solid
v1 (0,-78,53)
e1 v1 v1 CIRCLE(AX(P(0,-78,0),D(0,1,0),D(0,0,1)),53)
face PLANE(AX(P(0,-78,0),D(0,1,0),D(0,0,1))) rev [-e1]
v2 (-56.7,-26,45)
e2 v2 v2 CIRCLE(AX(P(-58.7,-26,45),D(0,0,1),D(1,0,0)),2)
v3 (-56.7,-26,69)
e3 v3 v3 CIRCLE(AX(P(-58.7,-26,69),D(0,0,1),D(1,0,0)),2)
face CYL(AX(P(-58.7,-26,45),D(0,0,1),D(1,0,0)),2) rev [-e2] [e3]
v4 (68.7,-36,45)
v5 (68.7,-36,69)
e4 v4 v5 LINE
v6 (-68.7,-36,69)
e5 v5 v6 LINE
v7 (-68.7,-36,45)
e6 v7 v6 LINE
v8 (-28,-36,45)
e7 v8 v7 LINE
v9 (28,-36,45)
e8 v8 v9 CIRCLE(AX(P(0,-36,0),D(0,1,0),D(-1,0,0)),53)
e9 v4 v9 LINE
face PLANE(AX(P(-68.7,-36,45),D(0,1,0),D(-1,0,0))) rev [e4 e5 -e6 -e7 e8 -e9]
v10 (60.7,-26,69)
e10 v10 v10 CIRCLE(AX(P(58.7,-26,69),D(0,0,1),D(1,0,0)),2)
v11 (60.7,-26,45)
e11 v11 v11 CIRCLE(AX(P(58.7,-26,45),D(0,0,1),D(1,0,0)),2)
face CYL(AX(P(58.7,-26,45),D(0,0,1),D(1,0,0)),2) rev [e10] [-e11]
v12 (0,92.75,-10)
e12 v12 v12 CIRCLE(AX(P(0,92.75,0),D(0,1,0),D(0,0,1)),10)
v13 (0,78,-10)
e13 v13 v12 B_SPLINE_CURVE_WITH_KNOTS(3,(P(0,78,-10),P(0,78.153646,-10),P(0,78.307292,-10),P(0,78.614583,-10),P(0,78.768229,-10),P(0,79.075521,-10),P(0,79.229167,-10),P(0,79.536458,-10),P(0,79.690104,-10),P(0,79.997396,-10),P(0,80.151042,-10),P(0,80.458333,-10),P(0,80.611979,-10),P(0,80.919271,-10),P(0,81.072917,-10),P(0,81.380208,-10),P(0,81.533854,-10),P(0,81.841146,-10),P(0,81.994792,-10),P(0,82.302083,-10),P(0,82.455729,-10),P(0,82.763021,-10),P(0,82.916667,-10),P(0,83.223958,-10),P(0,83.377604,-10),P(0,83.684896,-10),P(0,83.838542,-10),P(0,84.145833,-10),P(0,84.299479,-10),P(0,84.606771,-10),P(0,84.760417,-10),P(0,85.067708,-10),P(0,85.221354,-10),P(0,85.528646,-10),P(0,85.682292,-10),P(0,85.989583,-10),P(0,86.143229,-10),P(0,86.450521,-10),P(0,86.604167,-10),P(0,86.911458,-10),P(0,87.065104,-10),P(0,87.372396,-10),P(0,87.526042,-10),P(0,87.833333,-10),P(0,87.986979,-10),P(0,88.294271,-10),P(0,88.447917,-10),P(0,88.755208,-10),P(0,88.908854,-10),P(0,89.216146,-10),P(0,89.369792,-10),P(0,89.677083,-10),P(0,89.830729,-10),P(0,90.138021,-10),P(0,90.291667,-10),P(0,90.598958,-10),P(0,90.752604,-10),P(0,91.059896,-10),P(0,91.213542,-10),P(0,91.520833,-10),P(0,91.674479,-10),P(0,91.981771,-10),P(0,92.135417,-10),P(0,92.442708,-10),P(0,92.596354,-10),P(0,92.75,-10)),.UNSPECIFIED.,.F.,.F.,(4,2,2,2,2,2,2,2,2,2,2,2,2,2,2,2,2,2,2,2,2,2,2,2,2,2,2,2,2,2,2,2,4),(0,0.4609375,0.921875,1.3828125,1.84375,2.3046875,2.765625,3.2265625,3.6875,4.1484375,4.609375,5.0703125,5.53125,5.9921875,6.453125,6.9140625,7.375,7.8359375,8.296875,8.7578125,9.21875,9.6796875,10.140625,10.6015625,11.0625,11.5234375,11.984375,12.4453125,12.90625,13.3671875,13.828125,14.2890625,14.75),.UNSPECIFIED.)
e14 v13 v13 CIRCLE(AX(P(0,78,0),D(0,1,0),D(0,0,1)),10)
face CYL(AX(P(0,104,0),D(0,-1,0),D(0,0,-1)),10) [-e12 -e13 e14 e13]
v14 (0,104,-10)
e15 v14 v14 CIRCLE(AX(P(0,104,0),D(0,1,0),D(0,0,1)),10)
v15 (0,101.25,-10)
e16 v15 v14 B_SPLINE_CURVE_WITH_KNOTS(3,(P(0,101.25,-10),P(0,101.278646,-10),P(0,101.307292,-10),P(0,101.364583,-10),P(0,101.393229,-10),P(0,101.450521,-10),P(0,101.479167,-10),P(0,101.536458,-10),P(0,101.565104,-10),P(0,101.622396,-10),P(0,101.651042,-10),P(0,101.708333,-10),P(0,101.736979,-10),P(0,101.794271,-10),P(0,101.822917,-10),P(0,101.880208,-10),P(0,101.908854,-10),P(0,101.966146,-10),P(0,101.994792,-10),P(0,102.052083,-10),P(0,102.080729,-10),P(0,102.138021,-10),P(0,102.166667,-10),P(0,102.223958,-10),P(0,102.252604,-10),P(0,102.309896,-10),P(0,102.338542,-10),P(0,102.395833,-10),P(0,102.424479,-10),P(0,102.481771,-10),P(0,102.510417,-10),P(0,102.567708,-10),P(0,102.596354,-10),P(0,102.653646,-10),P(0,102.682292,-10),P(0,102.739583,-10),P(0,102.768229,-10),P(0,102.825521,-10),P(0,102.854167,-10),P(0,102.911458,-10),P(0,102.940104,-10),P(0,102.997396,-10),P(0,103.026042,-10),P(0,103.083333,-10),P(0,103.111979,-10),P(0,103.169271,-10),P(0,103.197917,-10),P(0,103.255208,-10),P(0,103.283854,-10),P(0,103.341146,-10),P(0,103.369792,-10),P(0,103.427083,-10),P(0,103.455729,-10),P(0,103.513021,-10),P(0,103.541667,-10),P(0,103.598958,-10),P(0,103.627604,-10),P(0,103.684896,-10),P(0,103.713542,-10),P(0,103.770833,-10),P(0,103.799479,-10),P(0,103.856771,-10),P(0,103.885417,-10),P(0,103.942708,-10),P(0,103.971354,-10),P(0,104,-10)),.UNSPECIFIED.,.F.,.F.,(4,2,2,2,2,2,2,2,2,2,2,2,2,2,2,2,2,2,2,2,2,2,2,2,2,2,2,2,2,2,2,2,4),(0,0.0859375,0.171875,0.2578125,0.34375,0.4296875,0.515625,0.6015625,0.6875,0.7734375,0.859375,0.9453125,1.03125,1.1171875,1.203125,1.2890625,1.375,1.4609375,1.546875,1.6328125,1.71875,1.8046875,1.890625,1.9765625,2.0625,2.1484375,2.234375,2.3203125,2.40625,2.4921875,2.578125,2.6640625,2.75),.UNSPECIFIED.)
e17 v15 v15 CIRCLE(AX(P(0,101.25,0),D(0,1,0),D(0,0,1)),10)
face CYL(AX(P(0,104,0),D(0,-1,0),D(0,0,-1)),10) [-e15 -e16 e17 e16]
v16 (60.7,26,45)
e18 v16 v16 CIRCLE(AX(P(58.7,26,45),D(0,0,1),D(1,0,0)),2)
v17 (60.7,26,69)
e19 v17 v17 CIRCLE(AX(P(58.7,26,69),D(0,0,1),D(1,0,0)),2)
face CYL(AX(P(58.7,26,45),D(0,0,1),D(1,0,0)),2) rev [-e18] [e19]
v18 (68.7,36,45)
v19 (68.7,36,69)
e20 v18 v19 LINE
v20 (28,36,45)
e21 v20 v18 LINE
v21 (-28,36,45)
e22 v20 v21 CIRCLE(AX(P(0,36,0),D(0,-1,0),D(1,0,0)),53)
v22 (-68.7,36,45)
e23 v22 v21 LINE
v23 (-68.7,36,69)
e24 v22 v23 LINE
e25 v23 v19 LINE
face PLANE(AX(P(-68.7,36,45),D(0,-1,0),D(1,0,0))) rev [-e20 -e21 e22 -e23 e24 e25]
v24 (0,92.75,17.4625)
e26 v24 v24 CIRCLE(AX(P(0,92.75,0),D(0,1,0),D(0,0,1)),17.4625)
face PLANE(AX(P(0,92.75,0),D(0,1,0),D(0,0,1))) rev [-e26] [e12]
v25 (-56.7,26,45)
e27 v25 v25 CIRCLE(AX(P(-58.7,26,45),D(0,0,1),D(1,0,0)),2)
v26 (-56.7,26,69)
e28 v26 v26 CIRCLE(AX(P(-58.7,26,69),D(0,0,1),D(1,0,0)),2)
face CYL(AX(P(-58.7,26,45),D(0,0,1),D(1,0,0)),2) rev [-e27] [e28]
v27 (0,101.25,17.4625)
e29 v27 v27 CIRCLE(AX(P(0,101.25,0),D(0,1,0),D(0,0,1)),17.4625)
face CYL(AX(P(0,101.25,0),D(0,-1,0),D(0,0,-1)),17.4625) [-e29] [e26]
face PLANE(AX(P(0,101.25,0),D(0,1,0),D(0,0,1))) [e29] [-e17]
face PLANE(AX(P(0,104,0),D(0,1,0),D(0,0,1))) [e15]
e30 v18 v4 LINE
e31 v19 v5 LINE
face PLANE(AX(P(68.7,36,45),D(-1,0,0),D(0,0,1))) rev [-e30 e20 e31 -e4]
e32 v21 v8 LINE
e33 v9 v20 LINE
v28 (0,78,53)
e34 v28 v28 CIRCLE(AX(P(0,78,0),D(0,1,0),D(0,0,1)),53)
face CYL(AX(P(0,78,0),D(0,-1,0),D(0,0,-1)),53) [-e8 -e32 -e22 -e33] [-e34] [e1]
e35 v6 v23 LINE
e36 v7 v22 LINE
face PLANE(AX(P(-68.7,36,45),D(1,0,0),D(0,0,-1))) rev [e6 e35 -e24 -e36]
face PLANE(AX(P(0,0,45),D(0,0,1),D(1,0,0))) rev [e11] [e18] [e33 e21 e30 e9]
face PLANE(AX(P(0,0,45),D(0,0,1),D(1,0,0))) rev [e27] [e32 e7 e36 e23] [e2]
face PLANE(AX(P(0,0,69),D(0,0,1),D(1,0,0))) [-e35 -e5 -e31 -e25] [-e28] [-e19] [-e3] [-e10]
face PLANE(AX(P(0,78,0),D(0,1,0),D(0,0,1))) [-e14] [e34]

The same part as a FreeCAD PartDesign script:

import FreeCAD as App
import Part
import Sketcher
from FreeCAD import Vector
Q = App.Units.Quantity


def add_polygon(sketch, points):
    """Adds a closed chain of lines whose ends are joined by coincident constraints."""
    first, n = sketch.GeometryCount, len(points)
    for a, b in zip(points, points[1:] + points[:1]):
        sketch.addGeometry(Part.LineSegment(App.Vector(*a, 0), App.Vector(*b, 0)), False)
    for i in range(n):
        sketch.addConstraint(Sketcher.Constraint("Coincident", first + i, 2, first + (i + 1) % n, 1))

doc = App.newDocument("Part")
body = doc.addObject("PartDesign::Body", "Body")

sketch1 = body.newObject("Sketcher::SketchObject", "Sketch")
sketch1.AttachmentSupport = (doc.getObject("XZ_Plane"), [""])
sketch1.MapMode = "FlatFace"
sketch1.addGeometry(Part.Circle(Vector(0, 0, 0), Vector(0, 0, 1), 53), False)
sketch1.addConstraint(Sketcher.Constraint("Coincident", 0, 3, -1, 1))
sketch1.addConstraint(Sketcher.Constraint("Diameter", 0, Q("106 mm")))
pad1 = body.newObject("PartDesign::Pad", "Pad")
pad1.Profile = sketch1
pad1.Length = 156
pad1.Midplane = True

sketch2 = body.newObject("Sketcher::SketchObject", "Sketch001")
sketch2.AttachmentSupport = (doc.getObject("XZ_Plane"), [""])
sketch2.MapMode = "FlatFace"
sketch2.AttachmentOffset = App.Placement(Vector(0, 0, -78), App.Rotation())
sketch2.addGeometry(Part.Circle(Vector(0, 0, 0), Vector(0, 0, 1), 10), False)
sketch2.addConstraint(Sketcher.Constraint("Coincident", 0, 3, -1, 1))
sketch2.addConstraint(Sketcher.Constraint("Diameter", 0, Q("20 mm")))
pad2 = body.newObject("PartDesign::Pad", "Pad001")
pad2.Profile = sketch2
pad2.Length = 26
pad2.Reversed = True

sketch3 = body.newObject("Sketcher::SketchObject", "Sketch002")
sketch3.AttachmentSupport = (doc.getObject("XZ_Plane"), [""])
sketch3.MapMode = "FlatFace"
sketch3.AttachmentOffset = App.Placement(Vector(0, 0, -97), App.Rotation())
sketch3.addGeometry(Part.Circle(Vector(0, 0, 0), Vector(0, 0, 1), 17.4625), False)
sketch3.addConstraint(Sketcher.Constraint("Coincident", 0, 3, -1, 1))
sketch3.addConstraint(Sketcher.Constraint("Diameter", 0, Q("34.925 mm")))
pad3 = body.newObject("PartDesign::Pad", "Pad002")
pad3.Profile = sketch3
pad3.Length = 8.5
pad3.Midplane = True

sketch4 = body.newObject("Sketcher::SketchObject", "Sketch003")
sketch4.AttachmentSupport = (doc.getObject("XY_Plane"), [""])
sketch4.MapMode = "FlatFace"
sketch4.AttachmentOffset = App.Placement(Vector(0, 0, 69), App.Rotation())
add_polygon(sketch4, [(68.7, 36), (68.7, -36), (-68.7, -36), (-68.7, 36)])
sketch4.addConstraint(Sketcher.Constraint("Vertical", 0))
sketch4.addConstraint(Sketcher.Constraint("Horizontal", 1))
sketch4.addConstraint(Sketcher.Constraint("Vertical", 2))
sketch4.addConstraint(Sketcher.Constraint("Horizontal", 3))
sketch4.addConstraint(Sketcher.Constraint("Symmetric", 0, 2, 2, 2, -1, 1))
sketch4.addConstraint(Sketcher.Constraint("DistanceY", 0, 2, 0, 1, Q("72 mm")))
sketch4.addConstraint(Sketcher.Constraint("DistanceX", 1, 2, 1, 1, Q("137.4 mm")))
pad4 = body.newObject("PartDesign::Pad", "Pad003")
pad4.Profile = sketch4
pad4.Length = 24
pad4.Reversed = True

sketch5 = body.newObject("Sketcher::SketchObject", "Sketch004")
sketch5.AttachmentSupport = (doc.getObject("XY_Plane"), [""])
sketch5.MapMode = "FlatFace"
sketch5.AttachmentOffset = App.Placement(Vector(0, 0, 69), App.Rotation())
sketch5.addGeometry(Part.Circle(Vector(-58.7, -26, 0), Vector(0, 0, 1), 2), False)
sketch5.addGeometry(Part.Circle(Vector(-58.7, 26, 0), Vector(0, 0, 1), 2), False)
sketch5.addGeometry(Part.Circle(Vector(58.7, 26, 0), Vector(0, 0, 1), 2), False)
sketch5.addGeometry(Part.Circle(Vector(58.7, -26, 0), Vector(0, 0, 1), 2), False)
sketch5.addConstraint(Sketcher.Constraint("Equal", 0, 1))
sketch5.addConstraint(Sketcher.Constraint("Equal", 1, 2))
sketch5.addConstraint(Sketcher.Constraint("Equal", 2, 3))
sketch5.addConstraint(Sketcher.Constraint("Symmetric", 0, 3, 2, 3, -1, 1))
sketch5.addConstraint(Sketcher.Constraint("Symmetric", 1, 3, 3, 3, -1, 1))
sketch5.addConstraint(Sketcher.Constraint("Symmetric", 1, 3, 2, 3, -2))
sketch5.addConstraint(Sketcher.Constraint("Diameter", 0, Q("4 mm")))
sketch5.addConstraint(Sketcher.Constraint("DistanceY", 0, 3, -1, 1, Q("26 mm")))
sketch5.addConstraint(Sketcher.Constraint("DistanceX", 0, 3, -1, 1, Q("58.7 mm")))
pocket1 = body.newObject("PartDesign::Pocket", "Pocket")
pocket1.Profile = sketch5
pocket1.Length = 24

doc.recompute()
